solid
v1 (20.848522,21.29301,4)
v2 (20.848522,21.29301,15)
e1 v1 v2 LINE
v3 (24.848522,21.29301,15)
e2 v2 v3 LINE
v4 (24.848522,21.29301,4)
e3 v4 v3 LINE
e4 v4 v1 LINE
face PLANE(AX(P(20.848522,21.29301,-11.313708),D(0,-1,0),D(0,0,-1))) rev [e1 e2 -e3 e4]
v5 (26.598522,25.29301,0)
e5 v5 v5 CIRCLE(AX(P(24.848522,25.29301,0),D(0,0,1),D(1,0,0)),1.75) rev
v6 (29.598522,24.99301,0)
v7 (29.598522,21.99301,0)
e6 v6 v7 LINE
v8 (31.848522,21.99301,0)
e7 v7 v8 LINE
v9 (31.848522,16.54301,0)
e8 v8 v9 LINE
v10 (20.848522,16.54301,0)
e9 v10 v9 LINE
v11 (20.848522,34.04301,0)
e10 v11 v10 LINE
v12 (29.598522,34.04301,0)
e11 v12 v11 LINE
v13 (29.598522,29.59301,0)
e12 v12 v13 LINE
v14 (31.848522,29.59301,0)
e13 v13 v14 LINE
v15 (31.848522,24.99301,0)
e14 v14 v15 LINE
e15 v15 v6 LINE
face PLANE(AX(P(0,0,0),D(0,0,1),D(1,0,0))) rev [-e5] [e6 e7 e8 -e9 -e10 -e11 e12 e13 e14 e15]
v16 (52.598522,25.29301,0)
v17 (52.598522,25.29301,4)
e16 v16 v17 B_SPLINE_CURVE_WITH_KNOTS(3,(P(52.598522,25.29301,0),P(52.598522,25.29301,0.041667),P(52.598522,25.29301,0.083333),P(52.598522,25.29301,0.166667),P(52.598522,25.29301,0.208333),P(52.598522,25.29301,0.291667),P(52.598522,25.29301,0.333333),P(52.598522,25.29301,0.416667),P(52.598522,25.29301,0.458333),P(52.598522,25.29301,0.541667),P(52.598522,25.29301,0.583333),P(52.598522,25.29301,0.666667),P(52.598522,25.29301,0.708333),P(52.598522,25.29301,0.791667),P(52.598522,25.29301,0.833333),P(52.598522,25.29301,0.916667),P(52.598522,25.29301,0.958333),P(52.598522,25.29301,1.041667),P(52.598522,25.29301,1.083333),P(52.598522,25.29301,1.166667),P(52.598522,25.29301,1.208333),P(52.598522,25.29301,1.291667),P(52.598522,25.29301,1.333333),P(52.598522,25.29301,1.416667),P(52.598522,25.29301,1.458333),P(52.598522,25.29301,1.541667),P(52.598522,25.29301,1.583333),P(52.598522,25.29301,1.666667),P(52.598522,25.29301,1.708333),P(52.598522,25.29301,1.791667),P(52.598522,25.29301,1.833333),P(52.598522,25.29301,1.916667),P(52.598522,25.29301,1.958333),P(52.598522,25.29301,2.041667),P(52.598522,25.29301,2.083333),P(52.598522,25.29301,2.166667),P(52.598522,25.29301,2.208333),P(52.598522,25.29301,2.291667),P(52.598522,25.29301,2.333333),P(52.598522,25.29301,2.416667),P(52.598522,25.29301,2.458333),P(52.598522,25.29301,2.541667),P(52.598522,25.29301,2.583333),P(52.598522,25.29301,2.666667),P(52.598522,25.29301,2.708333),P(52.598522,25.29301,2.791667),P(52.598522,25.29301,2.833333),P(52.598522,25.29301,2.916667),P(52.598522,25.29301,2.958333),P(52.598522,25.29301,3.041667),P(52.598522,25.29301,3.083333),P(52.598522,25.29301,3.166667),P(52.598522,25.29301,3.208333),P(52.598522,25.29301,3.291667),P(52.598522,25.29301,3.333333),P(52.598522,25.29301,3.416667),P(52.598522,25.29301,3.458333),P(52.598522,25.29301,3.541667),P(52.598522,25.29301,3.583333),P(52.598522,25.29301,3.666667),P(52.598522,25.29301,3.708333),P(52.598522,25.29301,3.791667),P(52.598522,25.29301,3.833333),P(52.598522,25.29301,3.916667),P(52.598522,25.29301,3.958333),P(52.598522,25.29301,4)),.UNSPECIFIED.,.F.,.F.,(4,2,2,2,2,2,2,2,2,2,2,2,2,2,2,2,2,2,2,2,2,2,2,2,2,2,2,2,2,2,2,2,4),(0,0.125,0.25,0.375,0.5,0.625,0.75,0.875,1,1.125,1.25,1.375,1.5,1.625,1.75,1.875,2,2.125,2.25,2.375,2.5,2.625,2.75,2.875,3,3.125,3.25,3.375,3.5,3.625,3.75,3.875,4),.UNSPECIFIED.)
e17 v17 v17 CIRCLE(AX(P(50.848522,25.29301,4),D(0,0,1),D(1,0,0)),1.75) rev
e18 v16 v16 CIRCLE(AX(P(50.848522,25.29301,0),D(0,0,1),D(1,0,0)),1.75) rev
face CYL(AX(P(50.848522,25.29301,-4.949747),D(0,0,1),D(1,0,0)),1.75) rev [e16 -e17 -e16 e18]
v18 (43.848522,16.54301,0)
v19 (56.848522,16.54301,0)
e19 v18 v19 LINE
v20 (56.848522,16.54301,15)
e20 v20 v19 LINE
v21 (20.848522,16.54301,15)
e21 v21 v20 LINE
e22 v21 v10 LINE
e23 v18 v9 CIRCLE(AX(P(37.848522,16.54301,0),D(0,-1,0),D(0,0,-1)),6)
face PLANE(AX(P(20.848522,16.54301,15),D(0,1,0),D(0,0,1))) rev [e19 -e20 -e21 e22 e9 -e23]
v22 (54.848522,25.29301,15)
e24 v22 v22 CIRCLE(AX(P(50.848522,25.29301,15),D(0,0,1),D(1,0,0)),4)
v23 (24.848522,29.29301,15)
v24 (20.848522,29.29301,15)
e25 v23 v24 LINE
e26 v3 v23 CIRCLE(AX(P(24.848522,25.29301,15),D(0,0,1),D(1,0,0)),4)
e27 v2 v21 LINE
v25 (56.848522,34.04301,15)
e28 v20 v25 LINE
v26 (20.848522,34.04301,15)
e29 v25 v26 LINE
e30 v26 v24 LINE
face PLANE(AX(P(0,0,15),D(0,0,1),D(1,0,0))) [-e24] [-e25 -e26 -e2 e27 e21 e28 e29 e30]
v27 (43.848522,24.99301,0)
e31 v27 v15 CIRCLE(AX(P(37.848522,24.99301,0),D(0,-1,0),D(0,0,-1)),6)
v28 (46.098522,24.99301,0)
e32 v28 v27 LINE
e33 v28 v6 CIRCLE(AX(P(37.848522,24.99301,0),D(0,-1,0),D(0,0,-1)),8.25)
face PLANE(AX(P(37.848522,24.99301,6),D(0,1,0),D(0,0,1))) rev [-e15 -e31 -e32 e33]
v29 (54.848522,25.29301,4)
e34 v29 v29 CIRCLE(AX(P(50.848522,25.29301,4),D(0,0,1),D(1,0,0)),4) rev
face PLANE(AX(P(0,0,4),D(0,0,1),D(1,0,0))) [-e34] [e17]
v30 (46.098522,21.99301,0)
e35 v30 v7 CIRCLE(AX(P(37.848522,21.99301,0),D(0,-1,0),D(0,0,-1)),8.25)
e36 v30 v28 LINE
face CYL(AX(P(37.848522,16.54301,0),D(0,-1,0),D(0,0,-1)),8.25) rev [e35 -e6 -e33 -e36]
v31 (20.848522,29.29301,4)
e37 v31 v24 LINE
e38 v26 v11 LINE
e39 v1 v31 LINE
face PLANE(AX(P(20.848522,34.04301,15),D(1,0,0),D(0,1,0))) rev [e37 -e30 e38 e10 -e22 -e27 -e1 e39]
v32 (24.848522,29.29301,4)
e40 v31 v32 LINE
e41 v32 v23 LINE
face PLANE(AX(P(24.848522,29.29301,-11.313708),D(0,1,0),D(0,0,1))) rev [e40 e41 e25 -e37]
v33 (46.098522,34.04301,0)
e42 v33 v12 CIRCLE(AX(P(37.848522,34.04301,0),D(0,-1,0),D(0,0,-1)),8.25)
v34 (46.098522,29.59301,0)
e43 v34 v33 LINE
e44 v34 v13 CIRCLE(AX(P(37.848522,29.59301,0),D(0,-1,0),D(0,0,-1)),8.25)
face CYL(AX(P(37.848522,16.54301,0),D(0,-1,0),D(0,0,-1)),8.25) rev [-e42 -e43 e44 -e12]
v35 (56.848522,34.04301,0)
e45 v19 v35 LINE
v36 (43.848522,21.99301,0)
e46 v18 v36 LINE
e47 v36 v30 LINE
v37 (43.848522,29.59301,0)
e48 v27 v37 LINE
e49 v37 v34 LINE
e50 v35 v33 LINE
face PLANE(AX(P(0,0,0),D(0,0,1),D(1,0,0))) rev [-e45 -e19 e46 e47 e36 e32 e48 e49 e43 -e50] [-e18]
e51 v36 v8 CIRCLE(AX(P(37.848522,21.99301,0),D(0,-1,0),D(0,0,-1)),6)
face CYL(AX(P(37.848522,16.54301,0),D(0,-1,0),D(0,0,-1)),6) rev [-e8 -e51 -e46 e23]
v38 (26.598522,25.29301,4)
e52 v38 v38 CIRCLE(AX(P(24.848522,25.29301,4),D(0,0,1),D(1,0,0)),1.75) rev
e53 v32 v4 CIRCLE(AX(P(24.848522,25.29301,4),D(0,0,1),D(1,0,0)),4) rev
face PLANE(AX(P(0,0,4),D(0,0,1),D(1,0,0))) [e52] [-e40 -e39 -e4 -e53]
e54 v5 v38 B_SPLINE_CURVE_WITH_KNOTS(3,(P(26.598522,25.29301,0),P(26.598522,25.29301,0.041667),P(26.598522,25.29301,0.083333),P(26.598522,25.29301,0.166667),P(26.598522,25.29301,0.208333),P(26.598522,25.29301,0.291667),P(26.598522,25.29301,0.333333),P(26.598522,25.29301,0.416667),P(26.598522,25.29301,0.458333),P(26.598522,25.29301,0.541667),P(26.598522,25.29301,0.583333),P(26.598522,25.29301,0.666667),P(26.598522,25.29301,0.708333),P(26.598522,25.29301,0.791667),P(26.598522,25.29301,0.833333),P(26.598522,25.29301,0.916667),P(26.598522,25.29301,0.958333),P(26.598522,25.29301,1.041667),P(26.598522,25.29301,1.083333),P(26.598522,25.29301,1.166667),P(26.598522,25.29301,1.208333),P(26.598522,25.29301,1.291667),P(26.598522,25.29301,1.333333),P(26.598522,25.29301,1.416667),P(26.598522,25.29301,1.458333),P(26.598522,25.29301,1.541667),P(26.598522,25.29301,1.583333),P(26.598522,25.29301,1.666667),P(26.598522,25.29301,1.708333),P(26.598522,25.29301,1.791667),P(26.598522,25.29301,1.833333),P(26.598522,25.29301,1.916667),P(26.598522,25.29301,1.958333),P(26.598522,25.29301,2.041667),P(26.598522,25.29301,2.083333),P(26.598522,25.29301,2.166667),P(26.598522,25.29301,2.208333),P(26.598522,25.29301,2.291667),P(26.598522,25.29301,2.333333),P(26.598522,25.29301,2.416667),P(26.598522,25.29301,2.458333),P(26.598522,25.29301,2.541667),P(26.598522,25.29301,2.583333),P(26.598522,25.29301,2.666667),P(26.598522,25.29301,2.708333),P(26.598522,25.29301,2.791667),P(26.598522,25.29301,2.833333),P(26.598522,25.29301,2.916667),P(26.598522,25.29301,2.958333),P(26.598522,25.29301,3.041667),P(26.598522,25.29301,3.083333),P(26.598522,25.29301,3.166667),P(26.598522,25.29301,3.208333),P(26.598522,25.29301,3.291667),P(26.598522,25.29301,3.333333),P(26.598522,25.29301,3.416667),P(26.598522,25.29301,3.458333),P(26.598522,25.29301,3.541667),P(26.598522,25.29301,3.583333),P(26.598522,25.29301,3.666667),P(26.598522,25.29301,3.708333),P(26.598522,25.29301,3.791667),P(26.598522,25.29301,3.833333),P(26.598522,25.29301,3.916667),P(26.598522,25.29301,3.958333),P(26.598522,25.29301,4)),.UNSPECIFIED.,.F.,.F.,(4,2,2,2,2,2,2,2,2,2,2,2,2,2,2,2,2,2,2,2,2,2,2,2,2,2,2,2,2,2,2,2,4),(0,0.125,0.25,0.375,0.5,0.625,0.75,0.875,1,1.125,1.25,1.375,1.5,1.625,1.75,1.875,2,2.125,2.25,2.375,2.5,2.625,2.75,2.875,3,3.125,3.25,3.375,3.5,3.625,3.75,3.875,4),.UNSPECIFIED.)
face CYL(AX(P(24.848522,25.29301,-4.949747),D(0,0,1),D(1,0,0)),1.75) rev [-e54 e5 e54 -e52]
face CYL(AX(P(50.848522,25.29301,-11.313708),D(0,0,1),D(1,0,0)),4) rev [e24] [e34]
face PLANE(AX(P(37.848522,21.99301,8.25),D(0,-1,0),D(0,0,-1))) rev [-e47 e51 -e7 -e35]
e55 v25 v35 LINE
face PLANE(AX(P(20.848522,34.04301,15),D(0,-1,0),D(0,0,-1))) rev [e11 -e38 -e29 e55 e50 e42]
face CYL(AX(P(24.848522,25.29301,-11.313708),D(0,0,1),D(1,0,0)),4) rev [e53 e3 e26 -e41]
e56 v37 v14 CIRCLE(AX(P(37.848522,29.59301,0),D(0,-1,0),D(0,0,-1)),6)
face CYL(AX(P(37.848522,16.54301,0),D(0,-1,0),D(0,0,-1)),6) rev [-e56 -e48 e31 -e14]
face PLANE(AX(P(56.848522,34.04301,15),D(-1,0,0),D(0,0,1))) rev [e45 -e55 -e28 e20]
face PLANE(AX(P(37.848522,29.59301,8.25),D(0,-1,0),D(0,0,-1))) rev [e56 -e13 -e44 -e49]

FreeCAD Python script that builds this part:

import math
import FreeCAD as App
import Part
import Sketcher

V = App.Vector
Q = App.Units.Quantity


def add_polygon(sketch, points):
    """Adds a closed chain of lines whose ends are joined by coincident constraints."""
    first, n = sketch.GeometryCount, len(points)
    for a, b in zip(points, points[1:] + points[:1]):
        sketch.addGeometry(Part.LineSegment(App.Vector(*a, 0), App.Vector(*b, 0)), False)
    for i in range(n):
        sketch.addConstraint(Sketcher.Constraint("Coincident", first + i, 2, first + (i + 1) % n, 1))

doc = App.newDocument("Part")
body = doc.addObject("PartDesign::Body", "Body")

# Sketch on XY plane
sketch1 = doc.addObject("Sketcher::SketchObject", "Sketch")
body.addObject(sketch1)
sketch1.AttachmentSupport = (doc.XY_Plane, [""])
sketch1.MapMode = "FlatFace"
add_polygon(sketch1, [(21, 34), (21, 17), (57, 17), (57, 34)])  # lines 0-3
sketch1.addConstraint(Sketcher.Constraint("Vertical", 0))
sketch1.addConstraint(Sketcher.Constraint("Horizontal", 1))
sketch1.addConstraint(Sketcher.Constraint("Vertical", 2))
sketch1.addConstraint(Sketcher.Constraint("Horizontal", 3))
sketch1.addConstraint(Sketcher.Constraint("DistanceX", 1, 1, 1, 2, Q("36 mm")))
sketch1.addConstraint(Sketcher.Constraint("DistanceY", 0, 2, 0, 1, Q("17.5 mm")))
sketch1.addConstraint(Sketcher.Constraint("DistanceY", -1, 1, 0, 2, Q("16.54301 mm")))
sketch1.addConstraint(Sketcher.Constraint("DistanceX", -1, 1, 0, 2, Q("20.848522 mm")))
pad1 = doc.addObject("PartDesign::Pad", "Pad")
body.addObject(pad1)
pad1.Profile = sketch1
pad1.Length = 15

# Sketch on XY plane
sketch2 = doc.addObject("Sketcher::SketchObject", "Sketch001")
body.addObject(sketch2)
sketch2.AttachmentSupport = (doc.XY_Plane, [""])
sketch2.MapMode = "FlatFace"
sketch2.AttachmentOffset = App.Placement(V(0, 0, 15), App.Rotation())
sketch2.addGeometry(Part.Circle(V(50.8, 25.3, 0), V(0, 0, 1), 1.8), False)
sketch2.addGeometry(Part.Circle(V(24.8, 25.3, 0), V(0, 0, 1), 1.8), False)
sketch2.addConstraint(Sketcher.Constraint("Equal", 0, 1))
sketch2.addConstraint(Sketcher.Constraint("Horizontal", 0, 3, 1, 3))
sketch2.addConstraint(Sketcher.Constraint("Diameter", 0, Q("3.5 mm")))
sketch2.addConstraint(Sketcher.Constraint("DistanceX", 1, 3, 0, 3, Q("26 mm")))
sketch2.addConstraint(Sketcher.Constraint("DistanceY", -1, 1, 0, 3, Q("25.29301 mm")))
sketch2.addConstraint(Sketcher.Constraint("DistanceX", -1, 1, 0, 3, Q("50.848522 mm")))
pocket1 = doc.addObject("PartDesign::Pocket", "Pocket")
body.addObject(pocket1)
pocket1.Profile = sketch2
pocket1.Length = 15

# Sketch on XY plane
sketch3 = doc.addObject("Sketcher::SketchObject", "Sketch002")
body.addObject(sketch3)
sketch3.AttachmentSupport = (doc.XY_Plane, [""])
sketch3.MapMode = "FlatFace"
sketch3.AttachmentOffset = App.Placement(V(0, 0, 15), App.Rotation())
sketch3.addGeometry(Part.Circle(V(50.8, 25.3, 0), V(0, 0, 1), 4), False)
sketch3.addGeometry(Part.LineSegment(V(24.8, 29.3, 0), V(20.8, 29.3, 0)), False)
sketch3.addGeometry(Part.LineSegment(V(20.8, 29.3, 0), V(20.8, 21.3, 0)), False)
sketch3.addGeometry(Part.LineSegment(V(20.8, 21.3, 0), V(24.8, 21.3, 0)), False)
sketch3.addGeometry(Part.ArcOfCircle(Part.Circle(V(24.8, 25.3, 0), V(0, 0, 1), 4), math.radians(-90), math.radians(90)), False)
sketch3.addConstraint(Sketcher.Constraint("Coincident", 1, 2, 2, 1))
sketch3.addConstraint(Sketcher.Constraint("Coincident", 2, 2, 3, 1))
sketch3.addConstraint(Sketcher.Constraint("Tangent", 3, 2, 4, 1))
sketch3.addConstraint(Sketcher.Constraint("Tangent", 4, 2, 1, 1))
sketch3.addConstraint(Sketcher.Constraint("Horizontal", 1))
sketch3.addConstraint(Sketcher.Constraint("Vertical", 2))
sketch3.addConstraint(Sketcher.Constraint("Horizontal", 3))
sketch3.addConstraint(Sketcher.Constraint("Equal", 0, 4))
sketch3.addConstraint(Sketcher.Constraint("Horizontal", 0, 3, 4, 3))
sketch3.addConstraint(Sketcher.Constraint("Diameter", 0, Q("8 mm")))
sketch3.addConstraint(Sketcher.Constraint("DistanceX", 1, 2, 1, 1, Q("4 mm")))
sketch3.addConstraint(Sketcher.Constraint("DistanceX", 4, 3, 0, 3, Q("26 mm")))
sketch3.addConstraint(Sketcher.Constraint("DistanceY", -1, 1, 0, 3, Q("25.29301 mm")))
sketch3.addConstraint(Sketcher.Constraint("DistanceX", -1, 1, 0, 3, Q("50.848522 mm")))
pocket2 = doc.addObject("PartDesign::Pocket", "Pocket001")
body.addObject(pocket2)
pocket2.Profile = sketch3
pocket2.Length = 11

# Sketch on YZ plane
sketch4 = doc.addObject("Sketcher::SketchObject", "Sketch003")
body.addObject(sketch4)
sketch4.AttachmentSupport = (doc.YZ_Plane, [""])
sketch4.MapMode = "FlatFace"
sketch4.AttachmentOffset = App.Placement(V(0, 0, 37.848522), App.Rotation())
add_polygon(sketch4, [(34.3, 0), (16.5, 0), (16.5, 6), (22, 6), (22, 8.2), (25, 8.2), (25, 6), (29.6, 6), (29.6, 8.2), (34.3, 8.2)])  # lines 0-9
sketch4.addConstraint(Sketcher.Constraint("Horizontal", 0))
sketch4.addConstraint(Sketcher.Constraint("Vertical", 1))
sketch4.addConstraint(Sketcher.Constraint("Horizontal", 2))
sketch4.addConstraint(Sketcher.Constraint("Vertical", 3))
sketch4.addConstraint(Sketcher.Constraint("Horizontal", 4))
sketch4.addConstraint(Sketcher.Constraint("Vertical", 5))
sketch4.addConstraint(Sketcher.Constraint("Horizontal", 6))
sketch4.addConstraint(Sketcher.Constraint("Vertical", 7))
sketch4.addConstraint(Sketcher.Constraint("Horizontal", 8))
sketch4.addConstraint(Sketcher.Constraint("Vertical", 9))
sketch4.addConstraint(Sketcher.Constraint("PointOnObject", 0, 2, -1))
sketch4.addConstraint(Sketcher.Constraint("Horizontal", 2, 2, 5, 2))
sketch4.addConstraint(Sketcher.Constraint("Horizontal", 4, 2, 7, 2))
sketch4.addConstraint(Sketcher.Constraint("DistanceX", 4, 1, 4, 2, Q("3 mm")))
sketch4.addConstraint(Sketcher.Constraint("DistanceY", 1, 1, 1, 2, Q("6 mm")))
sketch4.addConstraint(Sketcher.Constraint("DistanceX", 6, 1, 6, 2, Q("4.6 mm")))
sketch4.addConstraint(Sketcher.Constraint("DistanceX", 8, 1, 8, 2, Q("4.7 mm")))
sketch4.addConstraint(Sketcher.Constraint("DistanceX", 0, 2, 0, 1, Q("17.75 mm")))
sketch4.addConstraint(Sketcher.Constraint("DistanceY", 3, 1, 3, 2, Q("2.25 mm")))
sketch4.addConstraint(Sketcher.Constraint("DistanceX", -1, 1, 0, 2, Q("16.54301 mm")))
groove = doc.addObject("PartDesign::Groove", "Groove")
body.addObject(groove)
groove.Profile = sketch4
groove.ReferenceAxis = (sketch4, ["H_Axis"])
groove.Angle = 360

doc.recompute()
